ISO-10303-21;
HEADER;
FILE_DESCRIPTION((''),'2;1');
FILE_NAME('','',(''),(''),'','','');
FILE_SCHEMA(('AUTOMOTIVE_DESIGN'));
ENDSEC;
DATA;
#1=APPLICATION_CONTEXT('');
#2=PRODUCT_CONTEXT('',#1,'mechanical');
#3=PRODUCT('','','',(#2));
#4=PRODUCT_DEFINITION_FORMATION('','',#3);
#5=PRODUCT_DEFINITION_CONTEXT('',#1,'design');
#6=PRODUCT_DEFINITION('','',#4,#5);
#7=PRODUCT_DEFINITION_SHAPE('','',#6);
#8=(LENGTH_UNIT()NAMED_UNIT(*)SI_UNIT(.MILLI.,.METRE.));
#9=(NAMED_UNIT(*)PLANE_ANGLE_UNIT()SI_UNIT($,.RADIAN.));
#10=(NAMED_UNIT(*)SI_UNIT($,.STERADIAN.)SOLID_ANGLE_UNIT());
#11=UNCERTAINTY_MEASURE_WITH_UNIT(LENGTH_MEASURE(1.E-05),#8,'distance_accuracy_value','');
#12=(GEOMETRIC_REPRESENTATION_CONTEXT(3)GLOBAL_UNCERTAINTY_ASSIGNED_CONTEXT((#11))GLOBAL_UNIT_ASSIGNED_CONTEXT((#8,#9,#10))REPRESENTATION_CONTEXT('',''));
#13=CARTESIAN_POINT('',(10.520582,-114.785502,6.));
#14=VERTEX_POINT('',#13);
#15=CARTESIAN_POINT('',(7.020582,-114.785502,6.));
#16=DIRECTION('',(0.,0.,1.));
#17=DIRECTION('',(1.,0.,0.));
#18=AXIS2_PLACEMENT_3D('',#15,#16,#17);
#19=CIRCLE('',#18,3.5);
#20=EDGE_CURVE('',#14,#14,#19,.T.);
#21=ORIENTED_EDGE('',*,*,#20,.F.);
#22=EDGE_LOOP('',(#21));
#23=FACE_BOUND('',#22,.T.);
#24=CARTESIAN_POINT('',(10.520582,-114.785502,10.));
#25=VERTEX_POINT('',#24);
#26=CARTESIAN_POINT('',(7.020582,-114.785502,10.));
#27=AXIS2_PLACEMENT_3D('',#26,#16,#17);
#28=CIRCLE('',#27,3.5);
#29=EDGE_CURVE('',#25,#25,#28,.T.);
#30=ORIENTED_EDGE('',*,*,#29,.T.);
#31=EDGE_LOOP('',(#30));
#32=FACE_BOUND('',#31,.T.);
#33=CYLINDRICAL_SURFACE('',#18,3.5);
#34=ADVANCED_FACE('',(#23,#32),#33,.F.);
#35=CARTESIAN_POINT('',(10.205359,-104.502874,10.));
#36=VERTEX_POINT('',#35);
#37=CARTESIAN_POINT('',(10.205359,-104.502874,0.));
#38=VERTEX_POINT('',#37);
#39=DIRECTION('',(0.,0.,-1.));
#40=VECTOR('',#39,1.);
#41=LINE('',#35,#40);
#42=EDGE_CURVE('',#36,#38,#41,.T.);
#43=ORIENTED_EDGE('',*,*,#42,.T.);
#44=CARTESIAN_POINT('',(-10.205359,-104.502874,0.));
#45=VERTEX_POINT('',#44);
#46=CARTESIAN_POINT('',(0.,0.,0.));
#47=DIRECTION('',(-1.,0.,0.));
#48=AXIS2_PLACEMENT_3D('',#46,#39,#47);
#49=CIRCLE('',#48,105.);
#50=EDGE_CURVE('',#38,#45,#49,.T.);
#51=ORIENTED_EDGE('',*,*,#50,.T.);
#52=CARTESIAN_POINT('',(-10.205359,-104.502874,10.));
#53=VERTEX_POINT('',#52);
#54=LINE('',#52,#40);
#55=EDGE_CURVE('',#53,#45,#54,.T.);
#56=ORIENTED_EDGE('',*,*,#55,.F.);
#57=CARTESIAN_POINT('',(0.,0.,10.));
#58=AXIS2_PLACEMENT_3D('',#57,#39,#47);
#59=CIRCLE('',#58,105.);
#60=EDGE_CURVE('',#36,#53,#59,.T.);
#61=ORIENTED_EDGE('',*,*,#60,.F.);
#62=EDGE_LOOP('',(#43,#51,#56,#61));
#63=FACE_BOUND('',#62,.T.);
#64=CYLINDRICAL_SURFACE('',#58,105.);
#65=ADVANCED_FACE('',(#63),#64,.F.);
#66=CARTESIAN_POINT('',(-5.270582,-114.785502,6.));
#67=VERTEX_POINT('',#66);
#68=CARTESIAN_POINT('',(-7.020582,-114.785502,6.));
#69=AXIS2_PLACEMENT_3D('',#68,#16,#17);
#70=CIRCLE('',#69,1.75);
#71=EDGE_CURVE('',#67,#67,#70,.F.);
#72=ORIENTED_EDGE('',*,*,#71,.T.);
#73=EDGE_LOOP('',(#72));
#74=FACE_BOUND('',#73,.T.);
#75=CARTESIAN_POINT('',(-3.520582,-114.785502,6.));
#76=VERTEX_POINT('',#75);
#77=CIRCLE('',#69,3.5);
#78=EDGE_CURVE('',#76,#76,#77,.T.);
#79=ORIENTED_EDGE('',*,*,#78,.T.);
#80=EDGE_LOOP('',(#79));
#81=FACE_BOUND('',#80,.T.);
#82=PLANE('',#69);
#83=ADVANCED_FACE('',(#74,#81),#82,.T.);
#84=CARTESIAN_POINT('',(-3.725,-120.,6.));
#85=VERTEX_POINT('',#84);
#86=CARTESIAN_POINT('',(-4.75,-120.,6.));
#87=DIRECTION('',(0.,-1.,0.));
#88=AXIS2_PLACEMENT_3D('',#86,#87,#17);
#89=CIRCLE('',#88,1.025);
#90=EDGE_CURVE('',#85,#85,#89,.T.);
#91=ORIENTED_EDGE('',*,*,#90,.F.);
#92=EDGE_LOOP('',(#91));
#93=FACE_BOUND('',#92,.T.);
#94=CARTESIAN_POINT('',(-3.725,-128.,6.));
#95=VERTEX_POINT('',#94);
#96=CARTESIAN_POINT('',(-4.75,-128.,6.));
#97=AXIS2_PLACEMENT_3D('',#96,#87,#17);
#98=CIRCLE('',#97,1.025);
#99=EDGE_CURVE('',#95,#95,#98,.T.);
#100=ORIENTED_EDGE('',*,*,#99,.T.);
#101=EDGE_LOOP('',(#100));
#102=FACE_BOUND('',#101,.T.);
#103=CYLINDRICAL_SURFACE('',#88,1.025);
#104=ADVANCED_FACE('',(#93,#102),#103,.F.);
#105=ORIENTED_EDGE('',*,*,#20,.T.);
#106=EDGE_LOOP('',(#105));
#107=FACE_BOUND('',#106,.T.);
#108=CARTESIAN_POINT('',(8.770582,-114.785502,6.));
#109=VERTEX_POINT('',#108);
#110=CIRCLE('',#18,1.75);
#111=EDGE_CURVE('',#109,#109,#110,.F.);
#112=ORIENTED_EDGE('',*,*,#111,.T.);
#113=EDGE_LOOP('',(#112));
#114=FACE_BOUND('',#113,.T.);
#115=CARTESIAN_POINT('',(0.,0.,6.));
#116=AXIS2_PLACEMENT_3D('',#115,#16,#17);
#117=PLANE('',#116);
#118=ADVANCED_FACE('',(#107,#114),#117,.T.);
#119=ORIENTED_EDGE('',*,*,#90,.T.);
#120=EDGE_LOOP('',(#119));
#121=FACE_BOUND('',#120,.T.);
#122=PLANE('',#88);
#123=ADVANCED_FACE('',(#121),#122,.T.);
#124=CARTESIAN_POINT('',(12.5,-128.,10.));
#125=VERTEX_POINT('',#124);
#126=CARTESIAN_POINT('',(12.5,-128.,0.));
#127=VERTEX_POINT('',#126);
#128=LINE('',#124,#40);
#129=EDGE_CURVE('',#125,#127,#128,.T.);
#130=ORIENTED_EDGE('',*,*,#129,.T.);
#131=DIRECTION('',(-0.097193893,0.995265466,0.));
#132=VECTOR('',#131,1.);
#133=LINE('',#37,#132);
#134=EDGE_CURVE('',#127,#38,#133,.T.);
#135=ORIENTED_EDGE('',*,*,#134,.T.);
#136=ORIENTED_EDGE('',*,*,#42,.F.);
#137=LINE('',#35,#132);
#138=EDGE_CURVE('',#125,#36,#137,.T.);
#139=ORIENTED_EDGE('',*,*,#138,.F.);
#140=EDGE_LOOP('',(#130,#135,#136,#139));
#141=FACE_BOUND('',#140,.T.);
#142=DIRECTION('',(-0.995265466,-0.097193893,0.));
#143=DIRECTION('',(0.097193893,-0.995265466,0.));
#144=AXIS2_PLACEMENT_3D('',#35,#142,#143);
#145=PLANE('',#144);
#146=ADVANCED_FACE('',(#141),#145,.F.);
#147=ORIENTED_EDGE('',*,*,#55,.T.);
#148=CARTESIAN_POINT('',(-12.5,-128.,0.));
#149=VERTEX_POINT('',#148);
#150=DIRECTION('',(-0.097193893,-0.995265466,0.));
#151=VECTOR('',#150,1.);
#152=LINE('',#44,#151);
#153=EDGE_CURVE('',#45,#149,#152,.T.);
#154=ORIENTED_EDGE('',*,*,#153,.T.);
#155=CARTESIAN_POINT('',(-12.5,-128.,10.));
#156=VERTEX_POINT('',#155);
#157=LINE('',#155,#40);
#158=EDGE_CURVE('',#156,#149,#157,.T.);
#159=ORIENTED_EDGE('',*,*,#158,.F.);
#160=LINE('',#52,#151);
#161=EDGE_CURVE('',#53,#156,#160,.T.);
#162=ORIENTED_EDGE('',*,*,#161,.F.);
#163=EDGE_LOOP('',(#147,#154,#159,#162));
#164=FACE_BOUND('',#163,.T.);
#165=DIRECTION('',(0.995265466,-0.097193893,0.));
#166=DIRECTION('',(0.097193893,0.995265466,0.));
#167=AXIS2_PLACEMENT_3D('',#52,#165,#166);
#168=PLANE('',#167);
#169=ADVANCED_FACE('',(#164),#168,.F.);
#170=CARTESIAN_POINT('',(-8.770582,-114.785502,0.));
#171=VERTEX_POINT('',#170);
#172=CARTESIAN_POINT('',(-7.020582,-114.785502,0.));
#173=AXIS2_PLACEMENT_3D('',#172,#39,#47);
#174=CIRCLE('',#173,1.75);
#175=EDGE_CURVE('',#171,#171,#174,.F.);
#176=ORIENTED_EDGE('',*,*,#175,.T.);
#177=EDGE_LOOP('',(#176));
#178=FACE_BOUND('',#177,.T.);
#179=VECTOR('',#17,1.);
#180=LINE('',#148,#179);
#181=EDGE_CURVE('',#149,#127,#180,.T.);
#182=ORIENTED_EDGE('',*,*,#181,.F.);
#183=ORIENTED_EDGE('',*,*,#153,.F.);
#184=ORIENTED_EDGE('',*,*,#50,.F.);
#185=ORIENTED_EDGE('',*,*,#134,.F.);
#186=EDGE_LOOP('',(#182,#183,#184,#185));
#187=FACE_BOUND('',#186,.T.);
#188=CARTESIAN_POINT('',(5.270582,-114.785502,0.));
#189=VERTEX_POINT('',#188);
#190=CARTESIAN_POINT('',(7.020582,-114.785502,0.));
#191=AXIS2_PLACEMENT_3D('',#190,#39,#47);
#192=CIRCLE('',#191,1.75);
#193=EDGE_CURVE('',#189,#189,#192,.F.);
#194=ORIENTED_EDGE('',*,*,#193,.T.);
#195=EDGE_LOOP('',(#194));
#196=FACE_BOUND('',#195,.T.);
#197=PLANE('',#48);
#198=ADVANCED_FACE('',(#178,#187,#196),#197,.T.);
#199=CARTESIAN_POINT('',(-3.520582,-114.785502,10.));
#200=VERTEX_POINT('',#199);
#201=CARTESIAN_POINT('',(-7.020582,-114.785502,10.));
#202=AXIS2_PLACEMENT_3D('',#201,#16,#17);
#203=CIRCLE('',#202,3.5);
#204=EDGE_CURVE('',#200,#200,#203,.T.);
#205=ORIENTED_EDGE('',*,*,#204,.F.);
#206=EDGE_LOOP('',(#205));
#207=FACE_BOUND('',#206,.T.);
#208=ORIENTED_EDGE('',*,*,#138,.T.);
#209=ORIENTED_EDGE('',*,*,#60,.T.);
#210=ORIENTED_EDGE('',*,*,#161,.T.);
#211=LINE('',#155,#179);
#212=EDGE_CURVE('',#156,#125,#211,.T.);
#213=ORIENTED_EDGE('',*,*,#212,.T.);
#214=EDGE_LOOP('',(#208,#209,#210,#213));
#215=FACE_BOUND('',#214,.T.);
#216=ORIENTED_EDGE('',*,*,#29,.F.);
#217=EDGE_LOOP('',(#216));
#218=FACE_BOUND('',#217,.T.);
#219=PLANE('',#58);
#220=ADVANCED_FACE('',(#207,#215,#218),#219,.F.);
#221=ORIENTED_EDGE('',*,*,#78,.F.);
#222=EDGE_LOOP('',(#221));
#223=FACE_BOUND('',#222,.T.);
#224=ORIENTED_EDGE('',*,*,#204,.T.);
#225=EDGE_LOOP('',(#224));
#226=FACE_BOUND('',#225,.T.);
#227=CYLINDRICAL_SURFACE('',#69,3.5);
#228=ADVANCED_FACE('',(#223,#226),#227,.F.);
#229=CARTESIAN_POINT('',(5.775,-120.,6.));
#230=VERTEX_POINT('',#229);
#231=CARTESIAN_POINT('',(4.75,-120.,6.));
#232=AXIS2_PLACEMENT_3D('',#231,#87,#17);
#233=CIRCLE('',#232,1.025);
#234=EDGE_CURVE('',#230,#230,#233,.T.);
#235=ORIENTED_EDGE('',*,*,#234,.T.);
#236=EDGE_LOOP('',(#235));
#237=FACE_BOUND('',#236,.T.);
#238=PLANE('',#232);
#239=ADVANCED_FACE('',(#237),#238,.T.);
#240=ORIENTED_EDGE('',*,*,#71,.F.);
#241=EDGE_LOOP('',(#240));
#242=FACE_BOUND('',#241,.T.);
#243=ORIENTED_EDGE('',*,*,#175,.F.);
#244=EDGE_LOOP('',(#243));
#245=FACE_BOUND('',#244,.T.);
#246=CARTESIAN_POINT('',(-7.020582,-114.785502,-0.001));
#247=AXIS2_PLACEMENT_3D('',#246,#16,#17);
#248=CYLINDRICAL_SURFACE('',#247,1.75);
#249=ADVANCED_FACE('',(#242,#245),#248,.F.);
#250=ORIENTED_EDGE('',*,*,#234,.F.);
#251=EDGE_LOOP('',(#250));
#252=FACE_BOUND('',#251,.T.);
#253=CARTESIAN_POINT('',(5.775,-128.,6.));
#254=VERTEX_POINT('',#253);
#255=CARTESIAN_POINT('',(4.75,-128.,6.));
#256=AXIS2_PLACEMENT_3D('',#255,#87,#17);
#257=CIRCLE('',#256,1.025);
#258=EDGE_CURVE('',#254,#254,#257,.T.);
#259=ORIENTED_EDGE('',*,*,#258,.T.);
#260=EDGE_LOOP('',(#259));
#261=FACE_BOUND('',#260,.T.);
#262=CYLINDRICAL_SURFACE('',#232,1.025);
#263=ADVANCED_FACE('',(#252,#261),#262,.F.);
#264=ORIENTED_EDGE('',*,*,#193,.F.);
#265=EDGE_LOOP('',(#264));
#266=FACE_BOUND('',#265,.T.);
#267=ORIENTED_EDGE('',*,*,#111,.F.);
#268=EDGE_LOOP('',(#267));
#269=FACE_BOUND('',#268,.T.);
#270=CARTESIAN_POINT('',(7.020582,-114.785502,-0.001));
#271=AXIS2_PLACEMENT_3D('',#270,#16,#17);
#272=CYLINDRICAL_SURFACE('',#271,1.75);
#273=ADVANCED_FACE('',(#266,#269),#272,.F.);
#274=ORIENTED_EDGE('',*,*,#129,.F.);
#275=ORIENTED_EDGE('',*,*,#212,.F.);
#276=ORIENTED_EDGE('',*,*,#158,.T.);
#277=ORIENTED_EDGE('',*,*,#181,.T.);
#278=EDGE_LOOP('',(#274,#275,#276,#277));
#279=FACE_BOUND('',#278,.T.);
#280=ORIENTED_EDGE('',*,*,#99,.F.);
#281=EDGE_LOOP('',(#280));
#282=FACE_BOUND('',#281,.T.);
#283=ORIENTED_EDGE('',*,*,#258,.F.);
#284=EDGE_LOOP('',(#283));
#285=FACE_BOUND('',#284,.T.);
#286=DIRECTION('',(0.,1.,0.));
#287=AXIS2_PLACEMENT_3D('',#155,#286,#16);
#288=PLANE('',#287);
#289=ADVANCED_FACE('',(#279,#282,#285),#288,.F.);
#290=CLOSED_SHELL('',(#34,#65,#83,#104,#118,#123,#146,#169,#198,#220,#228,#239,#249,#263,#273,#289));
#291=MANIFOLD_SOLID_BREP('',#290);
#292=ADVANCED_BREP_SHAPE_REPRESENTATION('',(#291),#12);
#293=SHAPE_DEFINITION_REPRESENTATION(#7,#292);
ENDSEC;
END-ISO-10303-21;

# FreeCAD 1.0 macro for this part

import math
import FreeCAD as App
import Part
import Sketcher

doc = App.newDocument("Part")
params = doc.addObject("Spreadsheet::Sheet", "Params")
for row, (alias, value) in enumerate([
    ("sketch1_radius", "105 mm"),
    ("sketch1_width", "25 mm"),
    ("pad1_length", "10 mm"),
    ("sketch2_diameter", "2.05 mm"),
    ("pocket1_length", "8 mm"),
    ("sketch3_diameter", "3.5 mm"),
    ("sketch4_diameter", "3.5 mm"),
    ("sketch5_diameter", "7 mm"),
    ("sketch5_diameter2", "3.5 mm"),
    ("pocket4_length", "4 mm"),
], start=1):
    params.set(f"A{row}", alias)
    params.set(f"B{row}", "=" + value)
    params.setAlias(f"B{row}", alias)

body = doc.addObject("PartDesign::Body", "Body")

# Sketch on XY plane
sketch1 = body.newObject("Sketcher::SketchObject", "Sketch")
sketch1.AttachmentSupport = (doc.getObject("XY_Plane"), [""])
sketch1.MapMode = "FlatFace"
sketch1.addGeometry([
    Part.LineSegment(App.Vector(-12, -128, 0), App.Vector(12, -128, 0)),
    Part.LineSegment(App.Vector(12, -128, 0), App.Vector(10, -105, 0)),
    Part.ArcOfCircle(Part.Circle(App.Vector(0, 0, 0), App.Vector(0, 0, 1), 105), math.radians(-95.58), math.radians(-84.42)),
    Part.LineSegment(App.Vector(-10, -105, 0), App.Vector(-12, -128, 0)),
], False)
sketch1.addConstraint([
    Sketcher.Constraint("Coincident", 0, 2, 1, 1),
    Sketcher.Constraint("Coincident", 1, 2, 2, 2),
    Sketcher.Constraint("Coincident", 2, 1, 3, 1),
    Sketcher.Constraint("Coincident", 3, 2, 0, 1),
    Sketcher.Constraint("Horizontal", 0),
    Sketcher.Constraint("Coincident", 2, 3, -1, 1),
    Sketcher.Constraint("Horizontal", 1, 2, 2, 1),
    Sketcher.Constraint("Equal", 1, 3),
    Sketcher.Constraint("Radius", 2, 105.0),
    Sketcher.Constraint("DistanceX", 0, 1, 0, 2, 25.0),
    Sketcher.Constraint("DistanceY", 0, 2, -1, 1, 128.0),
    Sketcher.Constraint("DistanceX", -1, 1, 1, 2, 10.205359),
])
sketch1.setExpression("Constraints[8]", "Params.sketch1_radius")
sketch1.setExpression("Constraints[9]", "Params.sketch1_width")
pad1 = body.newObject("PartDesign::Pad", "Pad")
pad1.Profile = sketch1
pad1.setExpression("Length", "Params.pad1_length")

# Sketch on XZ plane
sketch2 = body.newObject("Sketcher::SketchObject", "Sketch001")
sketch2.AttachmentSupport = (doc.getObject("XZ_Plane"), [""])
sketch2.MapMode = "FlatFace"
sketch2.AttachmentOffset = App.Placement(App.Vector(0, 0, 128), App.Rotation())
sketch2.addGeometry([
    Part.Circle(App.Vector(-4.8, 6, 0), App.Vector(0, 0, 1), 1),
    Part.Circle(App.Vector(4.8, 6, 0), App.Vector(0, 0, 1), 1),
], False)
sketch2.addConstraint([
    Sketcher.Constraint("Equal", 0, 1),
    Sketcher.Constraint("Symmetric", 0, 3, 1, 3, -2),
    Sketcher.Constraint("Diameter", 0, 2.05),
    Sketcher.Constraint("DistanceY", -1, 1, 0, 3, 6.0),
    Sketcher.Constraint("DistanceX", 0, 3, 1, 3, 9.5),
])
sketch2.setExpression("Constraints[2]", "Params.sketch2_diameter")
pocket1 = body.newObject("PartDesign::Pocket", "Pocket")
pocket1.Profile = sketch2
pocket1.setExpression("Length", "Params.pocket1_length")

# Sketch on XY plane
sketch3 = body.newObject("Sketcher::SketchObject", "Sketch002")
sketch3.AttachmentSupport = (doc.getObject("XY_Plane"), [""])
sketch3.MapMode = "FlatFace"
sketch3.AttachmentOffset = App.Placement(App.Vector(0, 0, 10), App.Rotation())
sketch3.addGeometry(Part.Circle(App.Vector(-7, -114.8, 0), App.Vector(0, 0, 1), 1.8), False)
sketch3.addConstraint([
    Sketcher.Constraint("Diameter", 0, 3.5),
    Sketcher.Constraint("DistanceY", 0, 3, -1, 1, 114.785502),
    Sketcher.Constraint("DistanceX", 0, 3, -1, 1, 7.020582),
])
sketch3.setExpression("Constraints[0]", "Params.sketch3_diameter")
pocket2 = body.newObject("PartDesign::Pocket", "Pocket001")
pocket2.Profile = sketch3
pocket2.Type = "UpToFirst"

# Sketch on XY plane
sketch4 = body.newObject("Sketcher::SketchObject", "Sketch003")
sketch4.AttachmentSupport = (doc.getObject("XY_Plane"), [""])
sketch4.MapMode = "FlatFace"
sketch4.AttachmentOffset = App.Placement(App.Vector(0, 0, 10), App.Rotation())
sketch4.addGeometry(Part.Circle(App.Vector(7, -114.8, 0), App.Vector(0, 0, 1), 1.8), False)
sketch4.addConstraint([
    Sketcher.Constraint("Diameter", 0, 3.5),
    Sketcher.Constraint("DistanceY", 0, 3, -1, 1, 114.785502),
    Sketcher.Constraint("DistanceX", -1, 1, 0, 3, 7.020582),
])
sketch4.setExpression("Constraints[0]", "Params.sketch4_diameter")
pocket3 = body.newObject("PartDesign::Pocket", "Pocket002")
pocket3.Profile = sketch4
pocket3.Type = "UpToFirst"

# Sketch on XY plane
sketch5 = body.newObject("Sketcher::SketchObject", "Sketch004")
sketch5.AttachmentSupport = (doc.getObject("XY_Plane"), [""])
sketch5.MapMode = "FlatFace"
sketch5.AttachmentOffset = App.Placement(App.Vector(0, 0, 10), App.Rotation())
sketch5.addGeometry([
    Part.Circle(App.Vector(7, -114.8, 0), App.Vector(0, 0, 1), 3.5),
    Part.Circle(App.Vector(7, -114.8, 0), App.Vector(0, 0, 1), 1.8),
    Part.Circle(App.Vector(-7, -114.8, 0), App.Vector(0, 0, 1), 3.5),
], False)
sketch5.addConstraint([
    Sketcher.Constraint("Coincident", 1, 3, 0, 3),
    Sketcher.Constraint("Equal", 0, 2),
    Sketcher.Constraint("Symmetric", 0, 3, 2, 3, -2),
    Sketcher.Constraint("Diameter", 0, 7.0),
    Sketcher.Constraint("Diameter", 1, 3.5),
    Sketcher.Constraint("DistanceY", 0, 3, -1, 1, 114.785502),
    Sketcher.Constraint("DistanceX", -1, 1, 0, 3, 7.020582),
])
sketch5.setExpression("Constraints[3]", "Params.sketch5_diameter")
sketch5.setExpression("Constraints[4]", "Params.sketch5_diameter2")
pocket4 = body.newObject("PartDesign::Pocket", "Pocket003")
pocket4.Profile = sketch5
pocket4.setExpression("Length", "Params.pocket4_length")

doc.recompute()
